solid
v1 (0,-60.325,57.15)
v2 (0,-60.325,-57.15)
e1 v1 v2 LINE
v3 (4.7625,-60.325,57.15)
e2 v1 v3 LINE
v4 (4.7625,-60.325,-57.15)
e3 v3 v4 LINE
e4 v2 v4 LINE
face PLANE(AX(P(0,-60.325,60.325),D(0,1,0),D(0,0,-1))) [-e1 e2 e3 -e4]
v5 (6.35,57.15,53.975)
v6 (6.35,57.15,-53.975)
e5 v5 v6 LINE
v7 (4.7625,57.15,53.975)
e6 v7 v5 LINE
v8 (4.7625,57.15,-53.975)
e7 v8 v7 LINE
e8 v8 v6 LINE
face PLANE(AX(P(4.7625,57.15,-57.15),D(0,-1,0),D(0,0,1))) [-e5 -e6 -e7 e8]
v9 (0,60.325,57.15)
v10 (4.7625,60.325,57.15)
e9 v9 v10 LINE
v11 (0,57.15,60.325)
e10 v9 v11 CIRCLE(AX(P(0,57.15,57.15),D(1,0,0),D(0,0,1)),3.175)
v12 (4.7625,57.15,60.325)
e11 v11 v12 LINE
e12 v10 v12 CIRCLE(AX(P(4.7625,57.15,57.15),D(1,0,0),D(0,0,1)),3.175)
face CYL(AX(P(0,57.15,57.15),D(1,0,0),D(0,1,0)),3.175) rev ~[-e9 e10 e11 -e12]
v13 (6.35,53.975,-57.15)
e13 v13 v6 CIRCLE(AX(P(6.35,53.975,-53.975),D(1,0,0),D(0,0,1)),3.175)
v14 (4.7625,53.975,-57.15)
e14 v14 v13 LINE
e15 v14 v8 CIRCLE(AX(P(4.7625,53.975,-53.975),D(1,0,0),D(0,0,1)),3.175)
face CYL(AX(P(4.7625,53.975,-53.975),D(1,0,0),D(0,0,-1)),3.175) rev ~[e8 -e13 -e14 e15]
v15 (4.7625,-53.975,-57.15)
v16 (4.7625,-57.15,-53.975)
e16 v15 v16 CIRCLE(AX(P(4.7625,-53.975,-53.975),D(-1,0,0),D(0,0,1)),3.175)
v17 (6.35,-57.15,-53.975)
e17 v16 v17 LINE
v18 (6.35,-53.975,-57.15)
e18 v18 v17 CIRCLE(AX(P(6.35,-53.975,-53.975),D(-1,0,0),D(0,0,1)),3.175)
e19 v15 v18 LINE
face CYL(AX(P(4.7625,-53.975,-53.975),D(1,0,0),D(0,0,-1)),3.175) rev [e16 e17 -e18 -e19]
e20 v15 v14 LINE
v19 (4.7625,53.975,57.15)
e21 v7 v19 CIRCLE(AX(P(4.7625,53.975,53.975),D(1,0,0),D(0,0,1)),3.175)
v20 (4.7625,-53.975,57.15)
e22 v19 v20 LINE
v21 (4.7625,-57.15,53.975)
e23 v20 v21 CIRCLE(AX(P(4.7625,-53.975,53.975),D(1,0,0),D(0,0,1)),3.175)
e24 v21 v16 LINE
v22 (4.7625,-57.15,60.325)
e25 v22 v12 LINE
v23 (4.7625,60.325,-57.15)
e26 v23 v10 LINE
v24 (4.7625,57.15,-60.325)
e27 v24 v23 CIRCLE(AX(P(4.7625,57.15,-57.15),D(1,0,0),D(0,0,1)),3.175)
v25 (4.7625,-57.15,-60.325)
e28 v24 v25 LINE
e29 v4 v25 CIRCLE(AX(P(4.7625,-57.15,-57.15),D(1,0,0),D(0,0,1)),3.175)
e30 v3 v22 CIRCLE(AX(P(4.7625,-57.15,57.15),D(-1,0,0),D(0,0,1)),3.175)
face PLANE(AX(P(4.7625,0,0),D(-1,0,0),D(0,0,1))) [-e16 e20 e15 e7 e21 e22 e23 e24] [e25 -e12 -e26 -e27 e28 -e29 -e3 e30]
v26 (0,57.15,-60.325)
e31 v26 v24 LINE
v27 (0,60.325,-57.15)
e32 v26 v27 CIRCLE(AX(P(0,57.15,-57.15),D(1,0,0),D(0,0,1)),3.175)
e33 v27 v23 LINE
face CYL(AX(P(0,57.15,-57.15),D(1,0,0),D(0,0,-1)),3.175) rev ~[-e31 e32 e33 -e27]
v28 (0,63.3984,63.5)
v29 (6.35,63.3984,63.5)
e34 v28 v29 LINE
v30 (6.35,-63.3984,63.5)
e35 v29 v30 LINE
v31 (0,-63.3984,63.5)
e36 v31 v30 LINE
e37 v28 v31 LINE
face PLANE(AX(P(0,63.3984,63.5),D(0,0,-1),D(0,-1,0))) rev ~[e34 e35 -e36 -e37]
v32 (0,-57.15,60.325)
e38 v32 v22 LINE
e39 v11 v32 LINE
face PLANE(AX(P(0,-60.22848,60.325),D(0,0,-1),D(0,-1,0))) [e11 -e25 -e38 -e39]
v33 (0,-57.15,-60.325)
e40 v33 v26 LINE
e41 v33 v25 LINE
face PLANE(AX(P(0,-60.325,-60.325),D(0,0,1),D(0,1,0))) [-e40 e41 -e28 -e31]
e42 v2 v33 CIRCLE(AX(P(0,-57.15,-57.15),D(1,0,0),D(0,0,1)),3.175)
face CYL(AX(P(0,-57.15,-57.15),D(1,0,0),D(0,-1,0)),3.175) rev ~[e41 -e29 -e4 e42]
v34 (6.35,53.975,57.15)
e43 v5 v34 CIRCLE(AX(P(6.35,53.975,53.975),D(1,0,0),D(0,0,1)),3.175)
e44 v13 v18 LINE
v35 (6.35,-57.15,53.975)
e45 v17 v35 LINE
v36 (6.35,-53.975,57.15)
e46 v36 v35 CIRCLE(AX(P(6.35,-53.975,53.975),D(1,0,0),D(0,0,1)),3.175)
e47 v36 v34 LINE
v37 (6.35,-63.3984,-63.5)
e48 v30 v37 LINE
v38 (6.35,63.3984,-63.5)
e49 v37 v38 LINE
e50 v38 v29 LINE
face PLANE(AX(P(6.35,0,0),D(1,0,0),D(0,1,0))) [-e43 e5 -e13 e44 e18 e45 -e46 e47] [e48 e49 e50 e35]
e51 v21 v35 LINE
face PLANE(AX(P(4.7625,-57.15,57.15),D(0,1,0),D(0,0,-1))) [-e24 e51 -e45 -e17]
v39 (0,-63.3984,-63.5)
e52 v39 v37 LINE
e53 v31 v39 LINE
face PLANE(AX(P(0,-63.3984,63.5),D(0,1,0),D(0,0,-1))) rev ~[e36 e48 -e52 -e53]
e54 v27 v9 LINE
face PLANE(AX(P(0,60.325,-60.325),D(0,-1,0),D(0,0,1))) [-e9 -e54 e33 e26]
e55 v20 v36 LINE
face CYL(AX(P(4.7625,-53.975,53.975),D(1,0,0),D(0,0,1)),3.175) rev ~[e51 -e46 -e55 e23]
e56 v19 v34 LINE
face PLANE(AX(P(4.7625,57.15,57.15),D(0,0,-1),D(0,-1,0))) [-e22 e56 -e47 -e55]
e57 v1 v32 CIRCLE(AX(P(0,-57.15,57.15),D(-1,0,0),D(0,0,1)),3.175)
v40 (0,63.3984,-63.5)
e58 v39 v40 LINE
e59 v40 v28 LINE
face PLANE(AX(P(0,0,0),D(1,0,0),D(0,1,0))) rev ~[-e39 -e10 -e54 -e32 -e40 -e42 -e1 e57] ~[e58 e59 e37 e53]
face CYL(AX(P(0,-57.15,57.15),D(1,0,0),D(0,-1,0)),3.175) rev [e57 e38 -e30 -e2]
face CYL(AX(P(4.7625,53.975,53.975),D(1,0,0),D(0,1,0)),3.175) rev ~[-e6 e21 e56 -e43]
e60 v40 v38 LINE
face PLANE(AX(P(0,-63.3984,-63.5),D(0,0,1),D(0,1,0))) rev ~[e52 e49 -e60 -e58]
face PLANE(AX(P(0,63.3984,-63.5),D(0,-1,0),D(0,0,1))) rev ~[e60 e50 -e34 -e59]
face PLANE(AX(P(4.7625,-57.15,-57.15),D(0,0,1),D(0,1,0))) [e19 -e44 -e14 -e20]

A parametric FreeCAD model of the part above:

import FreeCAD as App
import Part
import Sketcher
from FreeCAD import Vector
Q = App.Units.Quantity


def edges_at(feature, points):
    """Names of the edges that pass closest to the given points."""
    edges = feature.Shape.Edges
    near = lambda p: min(range(len(edges)), key=lambda i: edges[i].distToShape(Part.Vertex(*p))[0])
    return sorted({f"Edge{near(p) + 1}" for p in points})

doc = App.newDocument("Part")
params = doc.addObject("Spreadsheet::Sheet", "Params")
for row, (alias, value) in enumerate([
    ("sketch1_height", "5 in"),
    ("sketch1_width", "4.992 in"),
    ("pad1_length", "0.25 in"),
    ("sketch2_width", "4.75 in"),
    ("pocket1_length", "0.1875 in"),
    ("sketch3_width", "4.5 in"),
    ("fillet_radius", "0.125 in"),
], start=1):
    params.set(f"A{row}", alias)
    params.set(f"B{row}", "=" + value)
    params.setAlias(f"B{row}", alias)

body = doc.addObject("PartDesign::Body", "Body")

# Sketch on YZ plane
sketch1 = body.newObject("Sketcher::SketchObject", "Sketch")
sketch1.AttachmentSupport = (doc.getObject("YZ_Plane"), [""])
sketch1.MapMode = "FlatFace"
sketch1.addGeometry(Part.LineSegment(Vector(-63, 64, 0), Vector(-63, -64, 0)), False)
sketch1.addGeometry(Part.LineSegment(Vector(-63, -64, 0), Vector(63, -64, 0)), False)
sketch1.addGeometry(Part.LineSegment(Vector(63, -64, 0), Vector(63, 64, 0)), False)
sketch1.addGeometry(Part.LineSegment(Vector(63, 64, 0), Vector(-63, 64, 0)), False)
sketch1.addConstraint(Sketcher.Constraint("Coincident", 0, 2, 1, 1))
sketch1.addConstraint(Sketcher.Constraint("Coincident", 1, 2, 2, 1))
sketch1.addConstraint(Sketcher.Constraint("Coincident", 2, 2, 3, 1))
sketch1.addConstraint(Sketcher.Constraint("Coincident", 3, 2, 0, 1))
sketch1.addConstraint(Sketcher.Constraint("Vertical", 0))
sketch1.addConstraint(Sketcher.Constraint("Horizontal", 1))
sketch1.addConstraint(Sketcher.Constraint("Vertical", 2))
sketch1.addConstraint(Sketcher.Constraint("Horizontal", 3))
sketch1.addConstraint(Sketcher.Constraint("Symmetric", 0, 2, 2, 2, -1, 1))
sketch1.addConstraint(Sketcher.Constraint("DistanceY", 0, 2, 0, 1, Q("5 in")))
sketch1.addConstraint(Sketcher.Constraint("DistanceX", 1, 1, 1, 2, Q("4.992 in")))
sketch1.setExpression("Constraints[9]", "Params.sketch1_height")
sketch1.setExpression("Constraints[10]", "Params.sketch1_width")
pad1 = body.newObject("PartDesign::Pad", "Pad")
pad1.Profile = sketch1
pad1.setExpression("Length", "Params.pad1_length")

# Sketch on YZ plane
sketch2 = body.newObject("Sketcher::SketchObject", "Sketch001")
sketch2.AttachmentSupport = (doc.getObject("YZ_Plane"), [""])
sketch2.MapMode = "FlatFace"
sketch2.addGeometry(Part.LineSegment(Vector(-60, -60, 0), Vector(-60, 60, 0)), False)
sketch2.addGeometry(Part.LineSegment(Vector(-60, 60, 0), Vector(60, 60, 0)), False)
sketch2.addGeometry(Part.LineSegment(Vector(60, 60, 0), Vector(60, -60, 0)), False)
sketch2.addGeometry(Part.LineSegment(Vector(60, -60, 0), Vector(-60, -60, 0)), False)
sketch2.addConstraint(Sketcher.Constraint("Coincident", 0, 2, 1, 1))
sketch2.addConstraint(Sketcher.Constraint("Coincident", 1, 2, 2, 1))
sketch2.addConstraint(Sketcher.Constraint("Coincident", 2, 2, 3, 1))
sketch2.addConstraint(Sketcher.Constraint("Coincident", 3, 2, 0, 1))
sketch2.addConstraint(Sketcher.Constraint("Vertical", 0))
sketch2.addConstraint(Sketcher.Constraint("Horizontal", 1))
sketch2.addConstraint(Sketcher.Constraint("Vertical", 2))
sketch2.addConstraint(Sketcher.Constraint("Horizontal", 3))
sketch2.addConstraint(Sketcher.Constraint("Symmetric", 0, 2, 2, 2, -1, 1))
sketch2.addConstraint(Sketcher.Constraint("Equal", 3, 0))
sketch2.addConstraint(Sketcher.Constraint("DistanceX", 1, 1, 1, 2, Q("4.75 in")))
sketch2.setExpression("Constraints[10]", "Params.sketch2_width")
pocket1 = body.newObject("PartDesign::Pocket", "Pocket")
pocket1.Profile = sketch2
pocket1.setExpression("Length", "Params.pocket1_length")
pocket1.Reversed = True

# Sketch on YZ plane
sketch3 = body.newObject("Sketcher::SketchObject", "Sketch002")
sketch3.AttachmentSupport = (doc.getObject("YZ_Plane"), [""])
sketch3.MapMode = "FlatFace"
sketch3.AttachmentOffset = App.Placement(Vector(0, 0, 0.1875 * 25.4), App.Rotation())
sketch3.addGeometry(Part.LineSegment(Vector(-57, -57, 0), Vector(-57, 57, 0)), False)
sketch3.addGeometry(Part.LineSegment(Vector(-57, 57, 0), Vector(57, 57, 0)), False)
sketch3.addGeometry(Part.LineSegment(Vector(57, 57, 0), Vector(57, -57, 0)), False)
sketch3.addGeometry(Part.LineSegment(Vector(57, -57, 0), Vector(-57, -57, 0)), False)
sketch3.addConstraint(Sketcher.Constraint("Coincident", 0, 2, 1, 1))
sketch3.addConstraint(Sketcher.Constraint("Coincident", 1, 2, 2, 1))
sketch3.addConstraint(Sketcher.Constraint("Coincident", 2, 2, 3, 1))
sketch3.addConstraint(Sketcher.Constraint("Coincident", 3, 2, 0, 1))
sketch3.addConstraint(Sketcher.Constraint("Vertical", 0))
sketch3.addConstraint(Sketcher.Constraint("Horizontal", 1))
sketch3.addConstraint(Sketcher.Constraint("Vertical", 2))
sketch3.addConstraint(Sketcher.Constraint("Horizontal", 3))
sketch3.addConstraint(Sketcher.Constraint("Symmetric", 0, 2, 2, 2, -1, 1))
sketch3.addConstraint(Sketcher.Constraint("Equal", 3, 0))
sketch3.addConstraint(Sketcher.Constraint("DistanceX", 1, 1, 1, 2, Q("4.5 in")))
sketch3.setExpression("Constraints[10]", "Params.sketch3_width")
pocket2 = body.newObject("PartDesign::Pocket", "Pocket001")
pocket2.Profile = sketch3
pocket2.Type = "ThroughAll"
pocket2.Reversed = True
doc.recompute()

fillet = body.newObject("PartDesign::Fillet", "Fillet")
fillet.Base = (pocket2, edges_at(pocket2, [
    (2.381, -60.325, -60.325),
    (5.556, -57.15, -57.15),
    (5.556, 57.15, 57.15),
    (5.556, 57.15, -57.15),
    (5.556, -57.15, 57.15),
    (2.381, 60.325, 60.325),
    (2.381, 60.325, -60.325),
    (2.381, -60.325, 60.325),
]))
fillet.setExpression("Radius", "Params.fillet_radius")

doc.recompute()
